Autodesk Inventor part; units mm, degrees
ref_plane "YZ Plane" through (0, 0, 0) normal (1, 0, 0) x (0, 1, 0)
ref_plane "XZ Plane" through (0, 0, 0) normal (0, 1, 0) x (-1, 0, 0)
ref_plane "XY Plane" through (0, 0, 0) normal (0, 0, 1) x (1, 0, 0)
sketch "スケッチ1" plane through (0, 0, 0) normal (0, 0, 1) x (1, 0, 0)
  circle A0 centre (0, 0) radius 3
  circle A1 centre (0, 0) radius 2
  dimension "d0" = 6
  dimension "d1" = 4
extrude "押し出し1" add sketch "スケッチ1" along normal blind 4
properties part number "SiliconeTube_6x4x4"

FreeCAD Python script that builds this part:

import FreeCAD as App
import Part
import Sketcher
Q = App.Units.Quantity

doc = App.newDocument("Part")
body = doc.addObject("PartDesign::Body", "Body")

sketch1 = doc.addObject("Sketcher::SketchObject", "Sketch")
body.addObject(sketch1)
sketch1.AttachmentSupport = (doc.XY_Plane, [""])
sketch1.MapMode = "FlatFace"
sketch1.addGeometry([
    Part.Circle(App.Vector(0, 0, 0), App.Vector(0, 0, 1), 3),
    Part.Circle(App.Vector(0, 0, 0), App.Vector(0, 0, 1), 2),
], False)
sketch1.addConstraint([
    Sketcher.Constraint("Coincident", 0, 3, -1, 1),
    Sketcher.Constraint("Coincident", 1, 3, -1, 1),
    Sketcher.Constraint("Diameter", 0, Q("6 mm")),
    Sketcher.Constraint("Diameter", 1, Q("4 mm")),
])
pad1 = doc.addObject("PartDesign::Pad", "Pad")
body.addObject(pad1)
pad1.Profile = sketch1
pad1.Length = 4

doc.recompute()
